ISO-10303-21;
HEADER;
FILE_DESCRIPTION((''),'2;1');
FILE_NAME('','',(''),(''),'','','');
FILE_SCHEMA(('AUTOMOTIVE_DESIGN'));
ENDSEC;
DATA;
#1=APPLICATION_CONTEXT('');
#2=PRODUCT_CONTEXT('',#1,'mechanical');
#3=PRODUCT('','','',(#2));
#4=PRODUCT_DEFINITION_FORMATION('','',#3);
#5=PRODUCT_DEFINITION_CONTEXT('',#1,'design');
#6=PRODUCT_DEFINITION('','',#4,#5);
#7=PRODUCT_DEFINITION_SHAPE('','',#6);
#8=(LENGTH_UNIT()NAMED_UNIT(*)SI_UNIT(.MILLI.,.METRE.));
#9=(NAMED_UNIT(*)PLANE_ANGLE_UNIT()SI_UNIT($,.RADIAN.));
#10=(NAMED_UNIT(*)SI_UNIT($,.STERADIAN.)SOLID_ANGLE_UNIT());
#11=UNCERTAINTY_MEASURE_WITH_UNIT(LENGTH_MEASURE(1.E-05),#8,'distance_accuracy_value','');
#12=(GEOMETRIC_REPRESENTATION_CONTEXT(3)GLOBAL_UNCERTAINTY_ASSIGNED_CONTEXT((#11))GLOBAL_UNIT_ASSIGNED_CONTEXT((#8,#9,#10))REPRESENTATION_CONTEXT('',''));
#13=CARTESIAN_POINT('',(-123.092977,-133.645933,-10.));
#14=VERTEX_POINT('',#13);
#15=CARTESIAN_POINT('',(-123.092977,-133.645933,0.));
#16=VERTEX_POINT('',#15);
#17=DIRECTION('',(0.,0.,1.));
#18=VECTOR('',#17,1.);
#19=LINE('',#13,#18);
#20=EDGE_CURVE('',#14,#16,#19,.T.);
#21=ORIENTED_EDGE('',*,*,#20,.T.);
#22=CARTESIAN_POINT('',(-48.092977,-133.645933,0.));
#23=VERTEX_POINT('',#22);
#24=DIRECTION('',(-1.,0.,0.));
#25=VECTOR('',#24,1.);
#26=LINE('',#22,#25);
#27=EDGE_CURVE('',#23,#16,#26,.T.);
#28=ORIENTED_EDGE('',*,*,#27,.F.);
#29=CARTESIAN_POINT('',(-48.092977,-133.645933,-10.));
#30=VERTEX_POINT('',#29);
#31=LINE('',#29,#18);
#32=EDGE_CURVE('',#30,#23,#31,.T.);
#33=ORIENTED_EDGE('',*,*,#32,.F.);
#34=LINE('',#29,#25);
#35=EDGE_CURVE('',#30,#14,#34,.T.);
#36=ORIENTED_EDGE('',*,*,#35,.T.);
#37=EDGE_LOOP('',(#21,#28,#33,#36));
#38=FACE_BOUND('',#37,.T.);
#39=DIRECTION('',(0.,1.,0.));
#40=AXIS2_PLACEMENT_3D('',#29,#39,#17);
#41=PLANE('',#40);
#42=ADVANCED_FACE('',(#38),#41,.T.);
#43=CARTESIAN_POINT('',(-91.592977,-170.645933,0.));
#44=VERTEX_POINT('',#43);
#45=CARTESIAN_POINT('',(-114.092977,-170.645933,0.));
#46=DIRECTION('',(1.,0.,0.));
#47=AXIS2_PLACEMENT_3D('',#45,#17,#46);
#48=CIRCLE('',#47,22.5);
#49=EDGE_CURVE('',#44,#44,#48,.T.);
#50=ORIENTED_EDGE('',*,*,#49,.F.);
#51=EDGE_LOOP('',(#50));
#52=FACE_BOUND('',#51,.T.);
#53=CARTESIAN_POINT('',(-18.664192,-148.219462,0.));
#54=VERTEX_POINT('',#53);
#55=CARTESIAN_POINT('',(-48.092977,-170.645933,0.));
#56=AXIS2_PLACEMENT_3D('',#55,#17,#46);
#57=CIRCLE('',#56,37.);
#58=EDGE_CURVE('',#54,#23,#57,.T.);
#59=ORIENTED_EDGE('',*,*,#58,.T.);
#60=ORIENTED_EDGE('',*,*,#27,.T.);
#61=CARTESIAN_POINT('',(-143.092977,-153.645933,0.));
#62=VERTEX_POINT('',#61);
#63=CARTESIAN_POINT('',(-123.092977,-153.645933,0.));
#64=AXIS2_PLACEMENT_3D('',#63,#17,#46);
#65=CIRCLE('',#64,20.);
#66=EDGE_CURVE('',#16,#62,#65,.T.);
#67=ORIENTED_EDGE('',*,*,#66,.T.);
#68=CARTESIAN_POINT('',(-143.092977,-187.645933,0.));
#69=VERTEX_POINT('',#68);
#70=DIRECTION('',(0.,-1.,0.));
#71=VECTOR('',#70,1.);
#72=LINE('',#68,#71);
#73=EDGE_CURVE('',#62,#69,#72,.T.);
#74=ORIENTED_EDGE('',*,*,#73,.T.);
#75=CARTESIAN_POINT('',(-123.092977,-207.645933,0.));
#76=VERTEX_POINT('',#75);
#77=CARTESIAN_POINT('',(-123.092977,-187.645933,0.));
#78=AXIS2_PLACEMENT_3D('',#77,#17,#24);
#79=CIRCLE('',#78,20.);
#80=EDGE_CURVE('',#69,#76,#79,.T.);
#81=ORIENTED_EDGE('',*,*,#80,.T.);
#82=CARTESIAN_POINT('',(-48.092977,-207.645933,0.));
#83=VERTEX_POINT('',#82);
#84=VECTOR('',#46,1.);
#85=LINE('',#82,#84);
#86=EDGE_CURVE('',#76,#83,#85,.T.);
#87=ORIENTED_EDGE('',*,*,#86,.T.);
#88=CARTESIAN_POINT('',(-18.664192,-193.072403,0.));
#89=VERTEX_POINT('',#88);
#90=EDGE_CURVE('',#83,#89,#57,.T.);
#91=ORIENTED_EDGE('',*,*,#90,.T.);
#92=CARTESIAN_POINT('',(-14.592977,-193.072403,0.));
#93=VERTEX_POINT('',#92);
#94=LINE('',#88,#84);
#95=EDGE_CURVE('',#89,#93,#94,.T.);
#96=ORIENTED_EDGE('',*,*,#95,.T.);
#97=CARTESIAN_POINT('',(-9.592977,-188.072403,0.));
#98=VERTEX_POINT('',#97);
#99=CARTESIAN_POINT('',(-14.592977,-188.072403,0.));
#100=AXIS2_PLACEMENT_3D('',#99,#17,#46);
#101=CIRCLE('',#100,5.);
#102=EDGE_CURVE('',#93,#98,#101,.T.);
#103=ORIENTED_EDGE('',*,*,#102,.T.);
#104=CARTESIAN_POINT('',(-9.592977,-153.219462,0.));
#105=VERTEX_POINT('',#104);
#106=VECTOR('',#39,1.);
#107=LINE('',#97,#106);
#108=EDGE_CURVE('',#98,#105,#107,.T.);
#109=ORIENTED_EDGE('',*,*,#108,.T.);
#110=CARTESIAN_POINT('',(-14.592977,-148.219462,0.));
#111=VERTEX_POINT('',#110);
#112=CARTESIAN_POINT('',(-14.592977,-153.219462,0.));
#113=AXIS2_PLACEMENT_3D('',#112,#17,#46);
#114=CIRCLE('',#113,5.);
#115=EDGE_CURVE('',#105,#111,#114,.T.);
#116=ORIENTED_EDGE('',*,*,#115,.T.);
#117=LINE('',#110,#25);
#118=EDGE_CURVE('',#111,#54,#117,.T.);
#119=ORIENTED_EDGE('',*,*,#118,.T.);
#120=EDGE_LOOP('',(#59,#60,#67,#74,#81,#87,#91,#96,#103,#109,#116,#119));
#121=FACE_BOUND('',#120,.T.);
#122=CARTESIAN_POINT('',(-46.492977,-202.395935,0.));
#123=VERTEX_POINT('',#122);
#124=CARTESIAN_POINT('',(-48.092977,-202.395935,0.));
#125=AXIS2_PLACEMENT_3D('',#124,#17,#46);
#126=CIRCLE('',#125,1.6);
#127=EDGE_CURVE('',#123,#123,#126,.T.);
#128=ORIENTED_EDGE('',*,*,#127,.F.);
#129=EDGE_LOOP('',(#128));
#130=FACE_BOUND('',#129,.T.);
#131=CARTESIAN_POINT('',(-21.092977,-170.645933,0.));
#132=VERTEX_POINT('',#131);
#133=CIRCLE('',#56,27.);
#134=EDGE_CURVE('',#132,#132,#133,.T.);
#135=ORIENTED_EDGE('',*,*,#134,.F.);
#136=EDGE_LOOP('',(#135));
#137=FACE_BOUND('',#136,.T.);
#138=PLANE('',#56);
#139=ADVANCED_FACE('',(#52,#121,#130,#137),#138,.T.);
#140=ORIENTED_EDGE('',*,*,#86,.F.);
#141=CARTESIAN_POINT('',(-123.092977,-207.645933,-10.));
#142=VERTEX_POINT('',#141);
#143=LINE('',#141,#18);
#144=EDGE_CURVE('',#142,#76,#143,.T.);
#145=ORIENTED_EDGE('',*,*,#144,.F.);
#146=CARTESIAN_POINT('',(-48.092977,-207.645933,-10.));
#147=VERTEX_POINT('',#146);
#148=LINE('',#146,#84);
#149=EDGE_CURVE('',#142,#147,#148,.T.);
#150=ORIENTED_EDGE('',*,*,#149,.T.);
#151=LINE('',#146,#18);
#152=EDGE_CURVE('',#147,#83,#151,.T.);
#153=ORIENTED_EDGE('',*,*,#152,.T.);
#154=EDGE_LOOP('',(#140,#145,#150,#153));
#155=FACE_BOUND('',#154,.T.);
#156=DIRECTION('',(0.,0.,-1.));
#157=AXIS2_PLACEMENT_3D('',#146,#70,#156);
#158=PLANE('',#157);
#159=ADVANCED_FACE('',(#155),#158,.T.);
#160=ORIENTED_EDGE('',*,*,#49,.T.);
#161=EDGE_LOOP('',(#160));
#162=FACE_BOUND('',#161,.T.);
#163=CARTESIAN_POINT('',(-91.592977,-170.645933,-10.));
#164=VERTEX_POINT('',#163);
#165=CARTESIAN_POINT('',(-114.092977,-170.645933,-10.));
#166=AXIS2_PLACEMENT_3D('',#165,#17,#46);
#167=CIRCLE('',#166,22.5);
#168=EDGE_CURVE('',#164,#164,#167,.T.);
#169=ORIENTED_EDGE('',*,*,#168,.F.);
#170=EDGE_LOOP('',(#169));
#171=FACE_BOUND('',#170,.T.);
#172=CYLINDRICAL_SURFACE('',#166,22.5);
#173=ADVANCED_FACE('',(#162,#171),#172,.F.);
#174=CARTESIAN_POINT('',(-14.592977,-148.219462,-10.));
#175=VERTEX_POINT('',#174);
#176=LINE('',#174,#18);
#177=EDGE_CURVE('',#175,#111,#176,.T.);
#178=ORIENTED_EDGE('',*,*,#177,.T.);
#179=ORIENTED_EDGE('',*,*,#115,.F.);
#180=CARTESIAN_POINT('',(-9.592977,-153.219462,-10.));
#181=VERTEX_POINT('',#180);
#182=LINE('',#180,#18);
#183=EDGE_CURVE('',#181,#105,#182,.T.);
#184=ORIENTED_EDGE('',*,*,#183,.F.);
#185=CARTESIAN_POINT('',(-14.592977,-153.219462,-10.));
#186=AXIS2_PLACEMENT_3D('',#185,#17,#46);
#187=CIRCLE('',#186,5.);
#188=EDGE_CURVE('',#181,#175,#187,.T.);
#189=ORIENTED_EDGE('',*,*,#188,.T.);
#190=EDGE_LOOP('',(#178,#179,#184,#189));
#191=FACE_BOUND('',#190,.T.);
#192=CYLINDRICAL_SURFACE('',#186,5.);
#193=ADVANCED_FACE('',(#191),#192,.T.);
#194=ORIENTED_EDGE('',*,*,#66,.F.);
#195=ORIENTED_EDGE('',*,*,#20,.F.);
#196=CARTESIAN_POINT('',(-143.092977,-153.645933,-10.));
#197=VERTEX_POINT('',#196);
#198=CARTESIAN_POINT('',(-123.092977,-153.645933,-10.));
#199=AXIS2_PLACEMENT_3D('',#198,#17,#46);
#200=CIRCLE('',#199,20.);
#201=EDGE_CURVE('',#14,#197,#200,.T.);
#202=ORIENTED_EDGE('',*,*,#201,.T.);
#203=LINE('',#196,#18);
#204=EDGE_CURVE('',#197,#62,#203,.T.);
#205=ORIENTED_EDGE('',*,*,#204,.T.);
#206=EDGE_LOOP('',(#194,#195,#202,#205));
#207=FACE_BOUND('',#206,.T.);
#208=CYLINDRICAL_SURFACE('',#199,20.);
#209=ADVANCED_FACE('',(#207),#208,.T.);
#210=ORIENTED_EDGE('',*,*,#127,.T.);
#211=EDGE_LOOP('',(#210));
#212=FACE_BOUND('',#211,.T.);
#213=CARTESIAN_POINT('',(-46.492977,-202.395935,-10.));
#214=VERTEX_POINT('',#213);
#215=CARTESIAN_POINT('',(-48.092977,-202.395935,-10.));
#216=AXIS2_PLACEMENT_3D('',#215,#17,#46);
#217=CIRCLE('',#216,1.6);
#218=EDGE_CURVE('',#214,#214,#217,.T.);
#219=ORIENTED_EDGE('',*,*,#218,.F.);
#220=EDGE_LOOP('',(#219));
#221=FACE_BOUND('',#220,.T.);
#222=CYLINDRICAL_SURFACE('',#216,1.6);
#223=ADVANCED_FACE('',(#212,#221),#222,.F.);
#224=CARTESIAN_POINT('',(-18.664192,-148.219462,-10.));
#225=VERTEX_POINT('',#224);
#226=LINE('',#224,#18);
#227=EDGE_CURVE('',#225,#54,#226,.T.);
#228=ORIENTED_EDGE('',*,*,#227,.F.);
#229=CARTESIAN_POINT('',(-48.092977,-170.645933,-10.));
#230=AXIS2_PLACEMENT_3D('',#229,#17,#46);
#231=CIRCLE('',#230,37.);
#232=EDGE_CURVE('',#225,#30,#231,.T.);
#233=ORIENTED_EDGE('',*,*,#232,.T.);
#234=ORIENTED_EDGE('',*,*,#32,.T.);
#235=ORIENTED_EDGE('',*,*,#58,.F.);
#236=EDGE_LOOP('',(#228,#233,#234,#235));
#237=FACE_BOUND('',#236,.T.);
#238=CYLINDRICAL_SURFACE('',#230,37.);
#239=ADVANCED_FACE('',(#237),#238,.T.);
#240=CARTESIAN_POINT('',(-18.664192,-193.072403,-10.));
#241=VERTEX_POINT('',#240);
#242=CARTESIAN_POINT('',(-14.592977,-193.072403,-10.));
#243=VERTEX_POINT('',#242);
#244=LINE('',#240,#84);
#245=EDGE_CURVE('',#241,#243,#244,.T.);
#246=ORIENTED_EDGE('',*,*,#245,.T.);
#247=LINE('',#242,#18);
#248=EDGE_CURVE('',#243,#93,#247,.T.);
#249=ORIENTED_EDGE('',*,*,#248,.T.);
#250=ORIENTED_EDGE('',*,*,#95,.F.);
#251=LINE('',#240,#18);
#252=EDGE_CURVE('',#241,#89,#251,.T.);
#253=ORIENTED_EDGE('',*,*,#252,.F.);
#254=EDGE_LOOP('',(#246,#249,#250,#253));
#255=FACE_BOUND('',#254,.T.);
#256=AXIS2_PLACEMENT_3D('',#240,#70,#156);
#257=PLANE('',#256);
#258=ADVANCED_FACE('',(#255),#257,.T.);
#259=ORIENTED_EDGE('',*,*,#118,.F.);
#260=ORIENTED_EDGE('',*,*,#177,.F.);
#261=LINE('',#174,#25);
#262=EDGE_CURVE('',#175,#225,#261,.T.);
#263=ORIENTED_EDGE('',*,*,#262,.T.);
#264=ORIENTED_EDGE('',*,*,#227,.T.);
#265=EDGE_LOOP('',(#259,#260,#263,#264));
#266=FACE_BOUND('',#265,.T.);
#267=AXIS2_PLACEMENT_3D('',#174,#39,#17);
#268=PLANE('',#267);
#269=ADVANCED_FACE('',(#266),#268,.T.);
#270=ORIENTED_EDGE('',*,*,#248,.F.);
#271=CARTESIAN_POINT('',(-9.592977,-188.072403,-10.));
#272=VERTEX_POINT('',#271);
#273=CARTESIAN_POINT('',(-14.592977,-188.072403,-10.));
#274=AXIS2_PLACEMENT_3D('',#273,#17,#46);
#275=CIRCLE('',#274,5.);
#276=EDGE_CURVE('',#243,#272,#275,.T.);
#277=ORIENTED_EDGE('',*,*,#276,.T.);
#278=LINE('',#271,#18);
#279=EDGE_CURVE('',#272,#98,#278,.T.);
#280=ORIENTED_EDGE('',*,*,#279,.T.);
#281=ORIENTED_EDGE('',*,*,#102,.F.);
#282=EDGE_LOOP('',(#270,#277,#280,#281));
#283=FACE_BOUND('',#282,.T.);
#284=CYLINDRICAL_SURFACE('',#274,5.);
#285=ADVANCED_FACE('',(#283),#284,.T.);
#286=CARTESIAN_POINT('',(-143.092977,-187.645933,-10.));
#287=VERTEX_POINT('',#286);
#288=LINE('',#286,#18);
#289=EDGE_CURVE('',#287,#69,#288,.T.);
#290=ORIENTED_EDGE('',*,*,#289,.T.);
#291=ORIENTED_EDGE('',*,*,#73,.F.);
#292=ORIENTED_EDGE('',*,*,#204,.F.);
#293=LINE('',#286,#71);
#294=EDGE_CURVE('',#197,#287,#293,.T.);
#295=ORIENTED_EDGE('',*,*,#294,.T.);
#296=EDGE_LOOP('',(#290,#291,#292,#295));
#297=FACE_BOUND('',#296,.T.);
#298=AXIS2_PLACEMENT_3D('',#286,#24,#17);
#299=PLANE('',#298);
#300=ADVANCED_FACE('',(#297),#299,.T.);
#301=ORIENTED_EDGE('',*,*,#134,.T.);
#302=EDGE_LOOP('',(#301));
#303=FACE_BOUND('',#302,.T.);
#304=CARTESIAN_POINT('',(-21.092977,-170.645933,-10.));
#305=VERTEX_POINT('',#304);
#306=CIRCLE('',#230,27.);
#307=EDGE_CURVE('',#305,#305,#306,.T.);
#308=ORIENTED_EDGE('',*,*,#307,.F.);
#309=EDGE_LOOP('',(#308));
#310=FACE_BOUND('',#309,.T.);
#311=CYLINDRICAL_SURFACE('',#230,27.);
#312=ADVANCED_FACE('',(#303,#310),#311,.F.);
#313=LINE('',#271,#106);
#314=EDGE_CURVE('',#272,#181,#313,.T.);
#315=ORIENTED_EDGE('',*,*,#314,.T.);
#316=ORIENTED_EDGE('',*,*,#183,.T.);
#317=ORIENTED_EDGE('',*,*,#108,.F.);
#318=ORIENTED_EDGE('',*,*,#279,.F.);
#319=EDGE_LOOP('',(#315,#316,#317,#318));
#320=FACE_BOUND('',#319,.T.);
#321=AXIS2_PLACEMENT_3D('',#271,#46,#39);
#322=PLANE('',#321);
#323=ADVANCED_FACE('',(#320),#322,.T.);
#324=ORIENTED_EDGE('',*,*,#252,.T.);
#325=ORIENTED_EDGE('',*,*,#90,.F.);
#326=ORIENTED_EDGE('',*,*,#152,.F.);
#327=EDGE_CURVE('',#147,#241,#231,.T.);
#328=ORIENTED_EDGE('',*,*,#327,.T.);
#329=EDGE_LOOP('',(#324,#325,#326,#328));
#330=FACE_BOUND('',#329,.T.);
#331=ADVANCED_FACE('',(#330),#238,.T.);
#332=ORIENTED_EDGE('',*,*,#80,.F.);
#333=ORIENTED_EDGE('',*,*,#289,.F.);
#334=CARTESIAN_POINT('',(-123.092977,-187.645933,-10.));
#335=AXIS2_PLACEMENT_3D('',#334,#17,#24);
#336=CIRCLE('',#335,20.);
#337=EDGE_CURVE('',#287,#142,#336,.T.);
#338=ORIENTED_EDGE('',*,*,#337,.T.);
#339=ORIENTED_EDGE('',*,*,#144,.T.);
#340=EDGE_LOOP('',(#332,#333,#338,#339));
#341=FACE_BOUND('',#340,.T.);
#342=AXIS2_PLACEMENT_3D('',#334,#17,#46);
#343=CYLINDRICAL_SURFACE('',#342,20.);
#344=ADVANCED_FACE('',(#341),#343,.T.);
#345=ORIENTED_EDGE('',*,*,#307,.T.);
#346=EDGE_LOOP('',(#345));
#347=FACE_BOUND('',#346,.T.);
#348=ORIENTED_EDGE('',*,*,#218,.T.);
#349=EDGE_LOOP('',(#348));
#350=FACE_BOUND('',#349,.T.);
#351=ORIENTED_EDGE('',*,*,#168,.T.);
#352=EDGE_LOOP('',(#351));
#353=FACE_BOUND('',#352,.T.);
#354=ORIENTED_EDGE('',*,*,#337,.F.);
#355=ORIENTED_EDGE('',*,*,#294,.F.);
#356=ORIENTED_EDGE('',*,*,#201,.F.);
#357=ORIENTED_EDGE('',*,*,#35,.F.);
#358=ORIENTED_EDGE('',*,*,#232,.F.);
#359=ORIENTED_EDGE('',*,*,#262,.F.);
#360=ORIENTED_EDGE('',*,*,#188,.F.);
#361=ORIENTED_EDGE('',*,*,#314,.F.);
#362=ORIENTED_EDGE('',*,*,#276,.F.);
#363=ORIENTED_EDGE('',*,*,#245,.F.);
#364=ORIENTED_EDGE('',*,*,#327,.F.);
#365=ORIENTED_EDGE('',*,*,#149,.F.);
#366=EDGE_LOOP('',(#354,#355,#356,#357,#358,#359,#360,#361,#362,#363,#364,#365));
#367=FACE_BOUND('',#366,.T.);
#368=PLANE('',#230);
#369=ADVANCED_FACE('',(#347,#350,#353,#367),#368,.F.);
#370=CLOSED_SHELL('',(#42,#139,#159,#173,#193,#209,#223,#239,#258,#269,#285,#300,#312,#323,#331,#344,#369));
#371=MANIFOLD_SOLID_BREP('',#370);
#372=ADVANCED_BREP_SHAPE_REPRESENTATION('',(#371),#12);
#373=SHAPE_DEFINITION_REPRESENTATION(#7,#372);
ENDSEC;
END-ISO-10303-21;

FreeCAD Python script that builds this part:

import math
import FreeCAD as App
import Part
import Sketcher

V = App.Vector

doc = App.newDocument("Part")
body = doc.addObject("PartDesign::Body", "Body")

sketch1 = body.newObject("Sketcher::SketchObject", "Sketch")
sketch1.AttachmentSupport = (doc.getObject("XY_Plane"), [""])
sketch1.MapMode = "FlatFace"
sketch1.addGeometry([
    Part.LineSegment(V(-123.1, -207.6, 0), V(-48.1, -207.6, 0)),
    Part.ArcOfCircle(Part.Circle(V(-48.1, -170.6, 0), V(0, 0, 1), 37), math.radians(-90), math.radians(-37)),
    Part.LineSegment(V(-18.7, -193.1, 0), V(-14.6, -193.1, 0)),
    Part.ArcOfCircle(Part.Circle(V(-14.6, -188.1, 0), V(0, 0, 1), 5), math.radians(-90), math.radians(0)),
    Part.LineSegment(V(-9.6, -188.1, 0), V(-9.6, -153.2, 0)),
    Part.ArcOfCircle(Part.Circle(V(-14.6, -153.2, 0), V(0, 0, 1), 5), math.radians(0), math.radians(90)),
    Part.LineSegment(V(-14.6, -148.2, 0), V(-18.7, -148.2, 0)),
    Part.ArcOfCircle(Part.Circle(V(-48.1, -170.6, 0), V(0, 0, 1), 37), math.radians(37), math.radians(90)),
    Part.LineSegment(V(-48.1, -133.6, 0), V(-123.1, -133.6, 0)),
    Part.ArcOfCircle(Part.Circle(V(-123.1, -153.6, 0), V(0, 0, 1), 20), math.radians(90), math.radians(180)),
    Part.LineSegment(V(-143.1, -153.6, 0), V(-143.1, -187.6, 0)),
    Part.ArcOfCircle(Part.Circle(V(-123.1, -187.6, 0), V(0, 0, 1), 20), math.radians(180), math.radians(270)),
    Part.Circle(V(-48.1, -170.6, 0), V(0, 0, 1), 27),
    Part.Circle(V(-114.1, -170.6, 0), V(0, 0, 1), 22.5),
], False)
sketch1.addConstraint([
    Sketcher.Constraint("Tangent", 0, 2, 1, 1),
    Sketcher.Constraint("Coincident", 1, 2, 2, 1),
    Sketcher.Constraint("Tangent", 2, 2, 3, 1),
    Sketcher.Constraint("Tangent", 3, 2, 4, 1),
    Sketcher.Constraint("Tangent", 4, 2, 5, 1),
    Sketcher.Constraint("Tangent", 5, 2, 6, 1),
    Sketcher.Constraint("Coincident", 6, 2, 7, 1),
    Sketcher.Constraint("Tangent", 7, 2, 8, 1),
    Sketcher.Constraint("Tangent", 8, 2, 9, 1),
    Sketcher.Constraint("Tangent", 9, 2, 10, 1),
    Sketcher.Constraint("Tangent", 10, 2, 11, 1),
    Sketcher.Constraint("Tangent", 11, 2, 0, 1),
    Sketcher.Constraint("Horizontal", 0),
    Sketcher.Constraint("Horizontal", 2),
    Sketcher.Constraint("Vertical", 4),
    Sketcher.Constraint("Horizontal", 6),
    Sketcher.Constraint("Horizontal", 8),
    Sketcher.Constraint("Vertical", 10),
    Sketcher.Constraint("Coincident", 7, 3, 1, 3),
    Sketcher.Constraint("Coincident", 12, 3, 1, 3),
    Sketcher.Constraint("Equal", 3, 5),
    Sketcher.Constraint("Equal", 1, 7),
    Sketcher.Constraint("Equal", 9, 11),
    Sketcher.Constraint("Horizontal", 12, 3, 13, 3),
    Sketcher.Constraint("Vertical", 1, 2, 6, 2),
    Sketcher.Constraint("Diameter", 12, 54.0),
    Sketcher.Constraint("Diameter", 13, 45.0),
    Sketcher.Constraint("Radius", 1, 37.0),
    Sketcher.Constraint("Radius", 3, 5.0),
    Sketcher.Constraint("Radius", 9, 20.0),
    Sketcher.Constraint("DistanceX", 0, 1, 0, 2, 75.0),
    Sketcher.Constraint("DistanceX", 9, 3, 13, 3, 9.0),
    Sketcher.Constraint("DistanceX", 1, 3, 3, 3, 33.5),
    Sketcher.Constraint("DistanceY", 4, 1, 4, 2, 34.852941),
    Sketcher.Constraint("DistanceX", 1, 2, -1, 1, 18.664192),
    Sketcher.Constraint("DistanceY", 1, 3, -1, 1, 170.645933),
])
pad1 = body.newObject("PartDesign::Pad", "Pad")
pad1.Profile = sketch1
pad1.Length = 10
pad1.Reversed = True

sketch2 = body.newObject("Sketcher::SketchObject", "Sketch001")
sketch2.AttachmentSupport = (doc.getObject("XY_Plane"), [""])
sketch2.MapMode = "FlatFace"
sketch2.addGeometry(Part.Circle(V(-48.1, -202.4, 0), V(0, 0, 1), 1.6), False)
sketch2.addConstraint([
    Sketcher.Constraint("Diameter", 0, 3.2),
    Sketcher.Constraint("DistanceX", 0, 3, -1, 1, 48.092977),
    Sketcher.Constraint("DistanceY", 0, 3, -1, 1, 202.395935),
])
pocket1 = body.newObject("PartDesign::Pocket", "Pocket")
pocket1.Profile = sketch2
pocket1.Type = "ThroughAll"

doc.recompute()
